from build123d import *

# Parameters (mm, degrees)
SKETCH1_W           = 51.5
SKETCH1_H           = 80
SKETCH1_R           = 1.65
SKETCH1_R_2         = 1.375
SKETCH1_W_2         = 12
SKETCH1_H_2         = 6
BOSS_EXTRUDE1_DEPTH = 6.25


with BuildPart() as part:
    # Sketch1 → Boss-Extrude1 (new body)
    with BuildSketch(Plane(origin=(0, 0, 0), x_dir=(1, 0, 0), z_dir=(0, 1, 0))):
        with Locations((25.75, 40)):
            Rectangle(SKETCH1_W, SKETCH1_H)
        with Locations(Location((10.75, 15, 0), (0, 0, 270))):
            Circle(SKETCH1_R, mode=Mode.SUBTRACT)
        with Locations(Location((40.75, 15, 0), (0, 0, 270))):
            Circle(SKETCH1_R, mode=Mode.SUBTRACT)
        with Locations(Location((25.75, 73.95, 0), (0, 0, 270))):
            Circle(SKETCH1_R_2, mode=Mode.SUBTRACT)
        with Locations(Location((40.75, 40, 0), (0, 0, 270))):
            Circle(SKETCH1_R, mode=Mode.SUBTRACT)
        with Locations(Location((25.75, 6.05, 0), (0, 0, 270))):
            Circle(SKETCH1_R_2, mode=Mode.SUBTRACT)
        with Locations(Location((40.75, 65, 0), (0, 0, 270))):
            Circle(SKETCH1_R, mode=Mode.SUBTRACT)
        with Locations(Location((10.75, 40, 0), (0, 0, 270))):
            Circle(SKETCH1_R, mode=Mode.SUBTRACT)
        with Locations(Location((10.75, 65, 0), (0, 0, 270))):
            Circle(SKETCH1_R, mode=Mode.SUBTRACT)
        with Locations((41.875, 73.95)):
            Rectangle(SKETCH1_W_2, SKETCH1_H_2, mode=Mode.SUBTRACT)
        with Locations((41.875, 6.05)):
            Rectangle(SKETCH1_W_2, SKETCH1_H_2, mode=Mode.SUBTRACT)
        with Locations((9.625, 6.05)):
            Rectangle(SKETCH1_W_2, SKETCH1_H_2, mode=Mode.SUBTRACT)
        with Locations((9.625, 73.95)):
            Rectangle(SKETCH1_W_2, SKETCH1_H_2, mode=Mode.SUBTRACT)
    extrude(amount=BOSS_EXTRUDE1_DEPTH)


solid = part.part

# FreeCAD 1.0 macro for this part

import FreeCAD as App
import Part
import Sketcher
Q = App.Units.Quantity

doc = App.newDocument("Part")
body = doc.addObject("PartDesign::Body", "Body")

# Sketch on XZ plane
sketch1 = doc.addObject("Sketcher::SketchObject", "Sketch")
body.addObject(sketch1)
sketch1.AttachmentSupport = (doc.XZ_Plane, [""])
sketch1.MapMode = "FlatFace"
sketch1.addGeometry([
    Part.LineSegment(App.Vector(0, -80, 0), App.Vector(0, 0, 0)),  # 0
    Part.LineSegment(App.Vector(0, 0, 0), App.Vector(51.5, 0, 0)),  # 1
    Part.LineSegment(App.Vector(51.5, 0, 0), App.Vector(51.5, -80, 0)),  # 2
    Part.LineSegment(App.Vector(51.5, -80, 0), App.Vector(0, -80, 0)),  # 3
    Part.LineSegment(App.Vector(15.6, -3, 0), App.Vector(3.6, -3, 0)),  # 4
    Part.LineSegment(App.Vector(3.6, -3, 0), App.Vector(3.6, -9.1, 0)),  # 5
    Part.LineSegment(App.Vector(3.6, -9.1, 0), App.Vector(15.6, -9.1, 0)),  # 6
    Part.LineSegment(App.Vector(15.6, -9.1, 0), App.Vector(15.6, -3, 0)),  # 7
    Part.Circle(App.Vector(10.8, -15, 0), App.Vector(0, 0, 1), 1.6),  # 8
    Part.Circle(App.Vector(25.8, -6, 0), App.Vector(0, 0, 1), 1.4),  # 9
    Part.LineSegment(App.Vector(47.9, -3, 0), App.Vector(35.9, -3, 0)),  # 10
    Part.LineSegment(App.Vector(35.9, -3, 0), App.Vector(35.9, -9.1, 0)),  # 11
    Part.LineSegment(App.Vector(35.9, -9.1, 0), App.Vector(47.9, -9.1, 0)),  # 12
    Part.LineSegment(App.Vector(47.9, -9.1, 0), App.Vector(47.9, -3, 0)),  # 13
    Part.Circle(App.Vector(40.8, -15, 0), App.Vector(0, 0, 1), 1.6),  # 14
    Part.Circle(App.Vector(10.8, -40, 0), App.Vector(0, 0, 1), 1.6),  # 15
    Part.Circle(App.Vector(10.8, -65, 0), App.Vector(0, 0, 1), 1.6),  # 16
    Part.LineSegment(App.Vector(15.6, -71, 0), App.Vector(3.6, -71, 0)),  # 17
    Part.LineSegment(App.Vector(3.6, -71, 0), App.Vector(3.6, -77, 0)),  # 18
    Part.LineSegment(App.Vector(3.6, -77, 0), App.Vector(15.6, -77, 0)),  # 19
    Part.LineSegment(App.Vector(15.6, -77, 0), App.Vector(15.6, -71, 0)),  # 20
    Part.Circle(App.Vector(40.8, -40, 0), App.Vector(0, 0, 1), 1.6),  # 21
    Part.Circle(App.Vector(25.8, -74, 0), App.Vector(0, 0, 1), 1.4),  # 22
    Part.Circle(App.Vector(40.8, -65, 0), App.Vector(0, 0, 1), 1.6),  # 23
    Part.LineSegment(App.Vector(47.9, -71, 0), App.Vector(35.9, -71, 0)),  # 24
    Part.LineSegment(App.Vector(35.9, -71, 0), App.Vector(35.9, -77, 0)),  # 25
    Part.LineSegment(App.Vector(35.9, -77, 0), App.Vector(47.9, -77, 0)),  # 26
    Part.LineSegment(App.Vector(47.9, -77, 0), App.Vector(47.9, -71, 0)),  # 27
], False)
sketch1.addConstraint([
    Sketcher.Constraint("Coincident", 0, 2, 1, 1),
    Sketcher.Constraint("Coincident", 1, 2, 2, 1),
    Sketcher.Constraint("Coincident", 2, 2, 3, 1),
    Sketcher.Constraint("Coincident", 3, 2, 0, 1),
    Sketcher.Constraint("Coincident", 4, 2, 5, 1),
    Sketcher.Constraint("Coincident", 5, 2, 6, 1),
    Sketcher.Constraint("Coincident", 6, 2, 7, 1),
    Sketcher.Constraint("Coincident", 7, 2, 4, 1),
    Sketcher.Constraint("Coincident", 10, 2, 11, 1),
    Sketcher.Constraint("Coincident", 11, 2, 12, 1),
    Sketcher.Constraint("Coincident", 12, 2, 13, 1),
    Sketcher.Constraint("Coincident", 13, 2, 10, 1),
    Sketcher.Constraint("Coincident", 17, 2, 18, 1),
    Sketcher.Constraint("Coincident", 18, 2, 19, 1),
    Sketcher.Constraint("Coincident", 19, 2, 20, 1),
    Sketcher.Constraint("Coincident", 20, 2, 17, 1),
    Sketcher.Constraint("Coincident", 24, 2, 25, 1),
    Sketcher.Constraint("Coincident", 25, 2, 26, 1),
    Sketcher.Constraint("Coincident", 26, 2, 27, 1),
    Sketcher.Constraint("Coincident", 27, 2, 24, 1),
    Sketcher.Constraint("Vertical", 0),
    Sketcher.Constraint("Horizontal", 1),
    Sketcher.Constraint("Vertical", 2),
    Sketcher.Constraint("Horizontal", 3),
    Sketcher.Constraint("Horizontal", 4),
    Sketcher.Constraint("Vertical", 5),
    Sketcher.Constraint("Horizontal", 6),
    Sketcher.Constraint("Vertical", 7),
    Sketcher.Constraint("Horizontal", 10),
    Sketcher.Constraint("Vertical", 11),
    Sketcher.Constraint("Horizontal", 12),
    Sketcher.Constraint("Vertical", 13),
    Sketcher.Constraint("Horizontal", 17),
    Sketcher.Constraint("Vertical", 18),
    Sketcher.Constraint("Horizontal", 19),
    Sketcher.Constraint("Vertical", 20),
    Sketcher.Constraint("Horizontal", 24),
    Sketcher.Constraint("Vertical", 25),
    Sketcher.Constraint("Horizontal", 26),
    Sketcher.Constraint("Vertical", 27),
    Sketcher.Constraint("Coincident", 0, 2, -1, 1),
    Sketcher.Constraint("Equal", 8, 14),
    Sketcher.Constraint("Equal", 14, 15),
    Sketcher.Constraint("Equal", 15, 16),
    Sketcher.Constraint("Equal", 16, 21),
    Sketcher.Constraint("Equal", 9, 22),
    Sketcher.Constraint("Equal", 21, 23),
    Sketcher.Constraint("Horizontal", 8, 3, 14, 3),
    Sketcher.Constraint("Horizontal", 15, 3, 21, 3),
    Sketcher.Constraint("Horizontal", 16, 3, 23, 3),
    Sketcher.Constraint("Horizontal", 7, 2, 10, 2),
    Sketcher.Constraint("Horizontal", 6, 2, 11, 2),
    Sketcher.Constraint("Horizontal", 20, 2, 24, 2),
    Sketcher.Constraint("Horizontal", 19, 2, 25, 2),
    Sketcher.Constraint("Vertical", 8, 3, 15, 3),
    Sketcher.Constraint("Vertical", 15, 3, 16, 3),
    Sketcher.Constraint("Vertical", 14, 3, 21, 3),
    Sketcher.Constraint("Vertical", 9, 3, 22, 3),
    Sketcher.Constraint("Vertical", 21, 3, 23, 3),
    Sketcher.Constraint("Vertical", 5, 2, 17, 2),
    Sketcher.Constraint("Vertical", 7, 2, 19, 2),
    Sketcher.Constraint("Vertical", 11, 2, 24, 2),
    Sketcher.Constraint("Vertical", 13, 2, 26, 2),
    Sketcher.Constraint("Equal", 6, 10),
    Sketcher.Constraint("Equal", 13, 18),
    Sketcher.Constraint("Diameter", 8, Q("3.3 mm")),
    Sketcher.Constraint("Diameter", 9, Q("2.75 mm")),
    Sketcher.Constraint("DistanceX", 4, 2, 4, 1, Q("12 mm")),
    Sketcher.Constraint("DistanceY", 0, 1, 0, 2, Q("80 mm")),
    Sketcher.Constraint("DistanceY", 5, 2, 5, 1, Q("6 mm")),
    Sketcher.Constraint("DistanceX", 1, 1, 1, 2, Q("51.5 mm")),
    Sketcher.Constraint("DistanceY", 8, 3, -1, 1, Q("15 mm")),
    Sketcher.Constraint("DistanceY", 15, 3, -1, 1, Q("40 mm")),
    Sketcher.Constraint("DistanceY", 16, 3, -1, 1, Q("65 mm")),
    Sketcher.Constraint("DistanceX", 8, 3, 9, 3, Q("15 mm")),
    Sketcher.Constraint("DistanceX", 9, 3, 14, 3, Q("15 mm")),
    Sketcher.Constraint("DistanceY", 9, 3, 4, 2, Q("3 mm")),
    Sketcher.Constraint("DistanceY", 22, 3, 17, 2, Q("3 mm")),
    Sketcher.Constraint("DistanceX", -1, 1, 8, 3, Q("10.75 mm")),
    Sketcher.Constraint("DistanceY", 9, 3, -1, 1, Q("6.05 mm")),
    Sketcher.Constraint("DistanceY", 22, 3, -1, 1, Q("73.95 mm")),
    Sketcher.Constraint("DistanceX", 7, 2, 10, 2, Q("20.25 mm")),
    Sketcher.Constraint("DistanceX", -1, 1, 4, 2, Q("3.625 mm")),
])
pad1 = doc.addObject("PartDesign::Pad", "Pad")
body.addObject(pad1)
pad1.Profile = sketch1
pad1.Length = 6.25
pad1.Reversed = True

doc.recompute()
